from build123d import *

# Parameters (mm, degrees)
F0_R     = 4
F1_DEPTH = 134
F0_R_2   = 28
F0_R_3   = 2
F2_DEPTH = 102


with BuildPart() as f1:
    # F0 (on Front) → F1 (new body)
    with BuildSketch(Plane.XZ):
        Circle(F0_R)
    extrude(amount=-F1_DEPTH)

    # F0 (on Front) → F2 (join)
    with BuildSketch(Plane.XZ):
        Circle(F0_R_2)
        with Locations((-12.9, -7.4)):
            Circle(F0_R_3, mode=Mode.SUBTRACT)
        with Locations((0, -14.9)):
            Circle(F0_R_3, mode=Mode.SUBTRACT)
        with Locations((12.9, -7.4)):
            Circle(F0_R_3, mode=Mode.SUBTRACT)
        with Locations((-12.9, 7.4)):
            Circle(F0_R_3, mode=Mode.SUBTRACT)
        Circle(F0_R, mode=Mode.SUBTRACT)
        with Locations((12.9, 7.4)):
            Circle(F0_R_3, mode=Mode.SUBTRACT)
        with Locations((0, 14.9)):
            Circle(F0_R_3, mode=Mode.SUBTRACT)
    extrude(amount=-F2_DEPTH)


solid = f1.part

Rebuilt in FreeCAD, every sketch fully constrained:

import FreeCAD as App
import Part
import Sketcher

V = App.Vector
Q = App.Units.Quantity

doc = App.newDocument("Part")
body = doc.addObject("PartDesign::Body", "Body")

sketch1 = body.newObject("Sketcher::SketchObject", "Sketch")
sketch1.AttachmentSupport = (doc.getObject("XZ_Plane"), [""])
sketch1.MapMode = "FlatFace"
sketch1.addGeometry(Part.Circle(V(0, 0, 0), V(0, 0, 1), 4), False)
sketch1.addConstraint([
    Sketcher.Constraint("Coincident", 0, 3, -1, 1),
    Sketcher.Constraint("Diameter", 0, Q("8 mm")),
])
pad1 = body.newObject("PartDesign::Pad", "Pad")
pad1.Profile = sketch1
pad1.Length = 134
pad1.Reversed = True

sketch2 = body.newObject("Sketcher::SketchObject", "Sketch001")
sketch2.AttachmentSupport = (doc.getObject("XZ_Plane"), [""])
sketch2.MapMode = "FlatFace"
sketch2.addGeometry([
    Part.Circle(V(0, 0, 0), V(0, 0, 1), 28),
    Part.Circle(V(-12.9, -7.4, 0), V(0, 0, 1), 2),
    Part.Circle(V(0, -14.9, 0), V(0, 0, 1), 2),
    Part.Circle(V(12.9, -7.4, 0), V(0, 0, 1), 2),
    Part.Circle(V(-12.9, 7.4, 0), V(0, 0, 1), 2),
    Part.Circle(V(0, 0, 0), V(0, 0, 1), 4),
    Part.Circle(V(12.9, 7.4, 0), V(0, 0, 1), 2),
    Part.Circle(V(0, 14.9, 0), V(0, 0, 1), 2),
], False)
sketch2.addConstraint([
    Sketcher.Constraint("Coincident", 0, 3, -1, 1),
    Sketcher.Constraint("Coincident", 5, 3, -1, 1),
    Sketcher.Constraint("Equal", 1, 2),
    Sketcher.Constraint("Equal", 2, 3),
    Sketcher.Constraint("Equal", 3, 4),
    Sketcher.Constraint("Equal", 4, 6),
    Sketcher.Constraint("Equal", 6, 7),
    Sketcher.Constraint("Symmetric", 3, 3, 4, 3, -1, 1),
    Sketcher.Constraint("Symmetric", 1, 3, 6, 3, -1, 1),
    Sketcher.Constraint("Symmetric", 2, 3, 7, 3, -1, 1),
    Sketcher.Constraint("Symmetric", 1, 3, 3, 3, -2),
    Sketcher.Constraint("PointOnObject", 2, 3, -2),
    Sketcher.Constraint("Diameter", 0, Q("56 mm")),
    Sketcher.Constraint("Diameter", 1, Q("4 mm")),
    Sketcher.Constraint("Diameter", 5, Q("8 mm")),
    Sketcher.Constraint("DistanceX", 1, 3, -1, 1, Q("12.9 mm")),
    Sketcher.Constraint("DistanceY", 1, 3, -1, 1, Q("7.4 mm")),
    Sketcher.Constraint("DistanceY", 2, 3, -1, 1, Q("14.9 mm")),
])
pad2 = body.newObject("PartDesign::Pad", "Pad001")
pad2.Profile = sketch2
pad2.Length = 102
pad2.Reversed = True

doc.recompute()
